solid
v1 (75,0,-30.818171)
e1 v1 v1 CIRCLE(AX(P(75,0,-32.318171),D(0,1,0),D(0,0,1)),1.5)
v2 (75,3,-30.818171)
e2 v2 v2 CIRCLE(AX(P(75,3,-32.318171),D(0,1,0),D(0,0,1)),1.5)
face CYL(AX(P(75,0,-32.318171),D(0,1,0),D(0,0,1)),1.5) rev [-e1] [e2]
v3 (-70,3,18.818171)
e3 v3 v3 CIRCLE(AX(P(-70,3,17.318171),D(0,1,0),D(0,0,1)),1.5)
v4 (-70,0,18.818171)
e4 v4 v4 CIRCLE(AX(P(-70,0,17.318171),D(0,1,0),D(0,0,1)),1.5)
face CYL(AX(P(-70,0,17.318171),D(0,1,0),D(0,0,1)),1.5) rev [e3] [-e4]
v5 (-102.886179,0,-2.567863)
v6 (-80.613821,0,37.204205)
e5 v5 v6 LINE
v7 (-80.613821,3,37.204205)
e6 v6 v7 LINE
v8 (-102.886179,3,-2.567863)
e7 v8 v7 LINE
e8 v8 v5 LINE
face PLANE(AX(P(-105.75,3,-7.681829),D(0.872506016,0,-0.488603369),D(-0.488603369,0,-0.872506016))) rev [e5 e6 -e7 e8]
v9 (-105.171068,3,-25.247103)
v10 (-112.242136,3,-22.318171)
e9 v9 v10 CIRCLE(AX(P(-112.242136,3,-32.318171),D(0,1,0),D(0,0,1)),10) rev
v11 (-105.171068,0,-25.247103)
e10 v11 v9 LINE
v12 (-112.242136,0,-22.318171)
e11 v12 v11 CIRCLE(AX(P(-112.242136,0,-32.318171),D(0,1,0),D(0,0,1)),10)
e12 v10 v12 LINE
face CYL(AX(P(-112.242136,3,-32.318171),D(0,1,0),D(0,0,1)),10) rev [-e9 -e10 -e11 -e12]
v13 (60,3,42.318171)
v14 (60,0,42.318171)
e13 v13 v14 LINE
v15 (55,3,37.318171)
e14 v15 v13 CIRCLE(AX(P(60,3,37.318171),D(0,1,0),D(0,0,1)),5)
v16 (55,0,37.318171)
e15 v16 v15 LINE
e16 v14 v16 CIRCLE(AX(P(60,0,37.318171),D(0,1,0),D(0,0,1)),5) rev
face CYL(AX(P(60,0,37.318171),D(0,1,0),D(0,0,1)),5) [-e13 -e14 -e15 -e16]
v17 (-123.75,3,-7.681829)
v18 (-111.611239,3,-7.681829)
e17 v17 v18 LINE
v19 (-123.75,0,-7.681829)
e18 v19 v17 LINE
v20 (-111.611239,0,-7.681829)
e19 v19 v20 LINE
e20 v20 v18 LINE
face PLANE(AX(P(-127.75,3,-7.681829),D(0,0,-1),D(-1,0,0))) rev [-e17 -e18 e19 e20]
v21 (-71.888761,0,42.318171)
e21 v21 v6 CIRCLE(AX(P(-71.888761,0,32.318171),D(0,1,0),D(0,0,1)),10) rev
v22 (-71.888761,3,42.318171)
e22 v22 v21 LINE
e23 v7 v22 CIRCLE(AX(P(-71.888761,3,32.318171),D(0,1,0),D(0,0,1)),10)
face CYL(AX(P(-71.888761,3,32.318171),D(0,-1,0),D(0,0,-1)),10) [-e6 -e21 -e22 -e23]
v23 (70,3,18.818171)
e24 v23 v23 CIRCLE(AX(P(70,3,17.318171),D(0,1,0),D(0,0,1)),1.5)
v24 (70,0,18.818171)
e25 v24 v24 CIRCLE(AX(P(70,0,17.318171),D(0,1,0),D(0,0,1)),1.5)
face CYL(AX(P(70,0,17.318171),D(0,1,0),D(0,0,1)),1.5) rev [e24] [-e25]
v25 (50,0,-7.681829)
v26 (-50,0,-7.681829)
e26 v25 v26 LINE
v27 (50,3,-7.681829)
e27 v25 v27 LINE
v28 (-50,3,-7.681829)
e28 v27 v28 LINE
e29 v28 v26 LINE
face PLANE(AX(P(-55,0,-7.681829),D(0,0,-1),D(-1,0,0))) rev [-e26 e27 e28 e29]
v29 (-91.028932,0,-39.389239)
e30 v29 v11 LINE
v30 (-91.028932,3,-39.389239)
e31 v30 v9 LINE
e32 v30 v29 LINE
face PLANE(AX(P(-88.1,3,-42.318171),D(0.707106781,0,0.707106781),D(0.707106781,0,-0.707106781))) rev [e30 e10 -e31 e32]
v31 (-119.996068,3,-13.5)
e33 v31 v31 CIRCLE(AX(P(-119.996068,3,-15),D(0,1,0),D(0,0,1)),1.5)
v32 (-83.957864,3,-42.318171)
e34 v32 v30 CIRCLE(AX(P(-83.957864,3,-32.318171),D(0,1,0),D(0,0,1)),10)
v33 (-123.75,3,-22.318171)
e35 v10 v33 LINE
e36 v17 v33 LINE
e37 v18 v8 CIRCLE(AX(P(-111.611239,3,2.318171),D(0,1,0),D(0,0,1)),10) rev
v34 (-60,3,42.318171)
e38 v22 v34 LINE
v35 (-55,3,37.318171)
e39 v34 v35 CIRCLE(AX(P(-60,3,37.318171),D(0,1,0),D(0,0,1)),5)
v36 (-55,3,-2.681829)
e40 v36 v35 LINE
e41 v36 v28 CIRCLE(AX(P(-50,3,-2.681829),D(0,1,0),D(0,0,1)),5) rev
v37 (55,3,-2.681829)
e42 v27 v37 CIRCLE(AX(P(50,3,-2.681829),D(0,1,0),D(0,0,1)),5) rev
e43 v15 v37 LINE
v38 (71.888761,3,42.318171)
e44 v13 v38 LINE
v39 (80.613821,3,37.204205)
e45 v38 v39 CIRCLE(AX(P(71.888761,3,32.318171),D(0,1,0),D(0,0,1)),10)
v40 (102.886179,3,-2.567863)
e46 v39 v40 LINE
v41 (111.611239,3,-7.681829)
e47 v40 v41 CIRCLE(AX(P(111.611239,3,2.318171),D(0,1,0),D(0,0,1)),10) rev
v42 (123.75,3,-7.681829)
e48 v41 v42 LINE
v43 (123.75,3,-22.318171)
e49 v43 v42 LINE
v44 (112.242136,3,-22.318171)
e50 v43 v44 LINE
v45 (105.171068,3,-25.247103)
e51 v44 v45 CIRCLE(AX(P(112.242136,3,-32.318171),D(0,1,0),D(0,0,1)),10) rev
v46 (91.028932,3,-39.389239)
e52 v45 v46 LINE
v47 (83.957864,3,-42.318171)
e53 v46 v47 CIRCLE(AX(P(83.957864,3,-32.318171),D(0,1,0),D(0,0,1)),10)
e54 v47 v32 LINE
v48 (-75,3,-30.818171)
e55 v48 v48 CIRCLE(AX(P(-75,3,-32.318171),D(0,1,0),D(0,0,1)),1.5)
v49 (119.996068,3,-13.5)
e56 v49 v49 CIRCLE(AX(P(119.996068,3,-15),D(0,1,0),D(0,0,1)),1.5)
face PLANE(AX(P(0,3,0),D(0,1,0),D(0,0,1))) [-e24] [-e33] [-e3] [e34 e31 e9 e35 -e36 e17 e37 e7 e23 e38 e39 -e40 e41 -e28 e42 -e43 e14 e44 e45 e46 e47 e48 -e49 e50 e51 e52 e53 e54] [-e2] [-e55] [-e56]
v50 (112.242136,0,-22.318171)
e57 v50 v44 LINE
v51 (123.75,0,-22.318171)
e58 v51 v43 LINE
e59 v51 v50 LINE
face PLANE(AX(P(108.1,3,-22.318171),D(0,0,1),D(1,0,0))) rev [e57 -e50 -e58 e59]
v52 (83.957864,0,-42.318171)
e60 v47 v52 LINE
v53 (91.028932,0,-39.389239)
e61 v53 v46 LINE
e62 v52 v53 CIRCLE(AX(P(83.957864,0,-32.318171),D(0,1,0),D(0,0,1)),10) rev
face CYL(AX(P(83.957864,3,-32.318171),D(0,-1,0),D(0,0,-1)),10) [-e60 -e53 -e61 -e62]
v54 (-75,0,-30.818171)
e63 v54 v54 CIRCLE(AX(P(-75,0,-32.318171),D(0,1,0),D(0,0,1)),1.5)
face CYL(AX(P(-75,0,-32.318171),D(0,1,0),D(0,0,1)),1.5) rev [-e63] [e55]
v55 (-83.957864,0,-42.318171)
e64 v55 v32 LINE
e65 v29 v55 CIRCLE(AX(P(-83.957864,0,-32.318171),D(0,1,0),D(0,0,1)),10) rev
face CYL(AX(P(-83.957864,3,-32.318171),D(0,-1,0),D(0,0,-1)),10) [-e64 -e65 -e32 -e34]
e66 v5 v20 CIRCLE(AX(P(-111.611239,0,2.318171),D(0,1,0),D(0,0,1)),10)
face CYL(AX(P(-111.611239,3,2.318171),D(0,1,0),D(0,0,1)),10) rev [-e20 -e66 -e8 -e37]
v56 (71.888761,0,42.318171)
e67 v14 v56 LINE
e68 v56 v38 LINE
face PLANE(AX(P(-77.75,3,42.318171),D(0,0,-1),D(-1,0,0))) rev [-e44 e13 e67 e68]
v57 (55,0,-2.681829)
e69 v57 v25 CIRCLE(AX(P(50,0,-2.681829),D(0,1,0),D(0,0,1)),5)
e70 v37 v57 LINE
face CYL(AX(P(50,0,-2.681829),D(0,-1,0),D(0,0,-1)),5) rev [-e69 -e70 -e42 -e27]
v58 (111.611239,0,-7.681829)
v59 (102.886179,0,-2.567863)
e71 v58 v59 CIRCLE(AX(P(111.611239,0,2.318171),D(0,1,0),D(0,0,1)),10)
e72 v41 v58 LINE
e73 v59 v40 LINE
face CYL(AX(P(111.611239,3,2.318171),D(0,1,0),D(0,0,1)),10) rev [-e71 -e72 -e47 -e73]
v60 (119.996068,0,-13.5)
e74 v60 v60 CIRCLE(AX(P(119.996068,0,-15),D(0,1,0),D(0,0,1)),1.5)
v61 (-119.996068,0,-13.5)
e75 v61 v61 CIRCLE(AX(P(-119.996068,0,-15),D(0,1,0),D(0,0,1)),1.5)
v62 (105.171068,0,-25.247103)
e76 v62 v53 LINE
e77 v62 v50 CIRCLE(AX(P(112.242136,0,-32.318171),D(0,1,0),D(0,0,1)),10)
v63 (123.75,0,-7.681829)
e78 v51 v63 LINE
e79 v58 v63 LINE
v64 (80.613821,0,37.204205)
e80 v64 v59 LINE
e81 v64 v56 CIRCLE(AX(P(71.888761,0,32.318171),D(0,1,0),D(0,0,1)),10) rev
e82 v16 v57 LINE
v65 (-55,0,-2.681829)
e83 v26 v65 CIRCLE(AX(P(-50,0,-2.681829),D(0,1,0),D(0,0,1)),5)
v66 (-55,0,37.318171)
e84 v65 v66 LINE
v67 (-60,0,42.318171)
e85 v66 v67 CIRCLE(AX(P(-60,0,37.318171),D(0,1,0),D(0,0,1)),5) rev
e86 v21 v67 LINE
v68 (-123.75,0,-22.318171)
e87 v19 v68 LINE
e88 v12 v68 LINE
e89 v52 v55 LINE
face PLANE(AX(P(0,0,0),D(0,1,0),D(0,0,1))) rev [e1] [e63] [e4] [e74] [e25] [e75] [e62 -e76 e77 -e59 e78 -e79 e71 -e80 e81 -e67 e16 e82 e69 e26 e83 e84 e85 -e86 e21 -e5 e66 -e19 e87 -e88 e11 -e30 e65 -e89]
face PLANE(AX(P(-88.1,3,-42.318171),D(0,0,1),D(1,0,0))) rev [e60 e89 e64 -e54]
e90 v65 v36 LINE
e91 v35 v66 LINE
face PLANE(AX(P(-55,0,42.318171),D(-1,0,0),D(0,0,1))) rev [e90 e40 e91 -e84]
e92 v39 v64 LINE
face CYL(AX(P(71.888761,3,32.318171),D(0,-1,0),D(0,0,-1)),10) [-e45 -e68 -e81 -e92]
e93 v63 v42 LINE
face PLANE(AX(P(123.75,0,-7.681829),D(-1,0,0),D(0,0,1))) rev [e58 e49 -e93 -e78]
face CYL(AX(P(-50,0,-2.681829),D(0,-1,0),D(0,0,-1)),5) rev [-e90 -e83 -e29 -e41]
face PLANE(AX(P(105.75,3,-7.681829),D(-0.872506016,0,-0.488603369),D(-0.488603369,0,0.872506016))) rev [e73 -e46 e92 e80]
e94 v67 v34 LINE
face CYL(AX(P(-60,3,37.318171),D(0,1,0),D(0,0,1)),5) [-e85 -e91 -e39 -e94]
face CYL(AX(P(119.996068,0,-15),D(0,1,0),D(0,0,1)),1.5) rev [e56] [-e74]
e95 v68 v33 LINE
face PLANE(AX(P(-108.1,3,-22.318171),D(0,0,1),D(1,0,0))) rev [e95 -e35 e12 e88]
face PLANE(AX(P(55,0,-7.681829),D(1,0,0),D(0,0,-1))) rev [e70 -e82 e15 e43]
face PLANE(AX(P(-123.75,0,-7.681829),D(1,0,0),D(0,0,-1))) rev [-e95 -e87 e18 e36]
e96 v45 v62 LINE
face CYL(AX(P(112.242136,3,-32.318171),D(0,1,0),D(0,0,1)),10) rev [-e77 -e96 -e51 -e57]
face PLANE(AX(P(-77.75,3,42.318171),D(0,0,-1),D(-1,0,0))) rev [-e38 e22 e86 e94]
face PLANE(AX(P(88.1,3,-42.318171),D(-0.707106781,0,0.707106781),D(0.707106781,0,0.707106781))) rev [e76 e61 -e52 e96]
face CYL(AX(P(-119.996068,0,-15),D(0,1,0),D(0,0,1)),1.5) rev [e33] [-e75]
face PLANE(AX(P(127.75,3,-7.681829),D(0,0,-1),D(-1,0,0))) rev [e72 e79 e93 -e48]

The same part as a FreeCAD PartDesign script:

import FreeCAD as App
import Part
import Sketcher
from FreeCAD import Vector
Q = App.Units.Quantity


def edges_at(feature, points):
    """Names of the edges that pass closest to the given points."""
    edges = feature.Shape.Edges
    near = lambda p: min(range(len(edges)), key=lambda i: edges[i].distToShape(Part.Vertex(*p))[0])
    return sorted({f"Edge{near(p) + 1}" for p in points})


def add_polygon(sketch, points):
    """Adds a closed chain of lines whose ends are joined by coincident constraints."""
    first, n = sketch.GeometryCount, len(points)
    for a, b in zip(points, points[1:] + points[:1]):
        sketch.addGeometry(Part.LineSegment(App.Vector(*a, 0), App.Vector(*b, 0)), False)
    for i in range(n):
        sketch.addConstraint(Sketcher.Constraint("Coincident", first + i, 2, first + (i + 1) % n, 1))

doc = App.newDocument("Part")
body = doc.addObject("PartDesign::Body", "Body")

# Sketch on XZ plane
sketch1 = doc.addObject("Sketcher::SketchObject", "Sketch")
body.addObject(sketch1)
sketch1.AttachmentSupport = (doc.XZ_Plane, [""])
sketch1.MapMode = "FlatFace"
add_polygon(sketch1, [(88, -42), (-88, -42), (-108, -22), (-128, -22), (-128, -8), (-106, -8), (-78, 42), (78, 42), (106, -8), (128, -8), (128, -22), (108, -22)])  # lines 0-11
sketch1.addConstraint([
    Sketcher.Constraint("Horizontal", 0),
    Sketcher.Constraint("Horizontal", 2),
    Sketcher.Constraint("Vertical", 3),
    Sketcher.Constraint("Horizontal", 4),
    Sketcher.Constraint("Horizontal", 6),
    Sketcher.Constraint("Horizontal", 8),
    Sketcher.Constraint("Vertical", 9),
    Sketcher.Constraint("Horizontal", 10),
    Sketcher.Constraint("Symmetric", 4, 2, 7, 2, -2),
    Sketcher.Constraint("Symmetric", 2, 2, 9, 2, -2),
    Sketcher.Constraint("Perpendicular", 1, 11),
    Sketcher.Constraint("Equal", 2, 10),
    Sketcher.Constraint("Equal", 5, 7),
    Sketcher.Constraint("Equal", 1, 11),
    Sketcher.Constraint("DistanceX", 4, 1, 4, 2, Q("22 mm")),
    Sketcher.Constraint("DistanceX", 0, 2, 0, 1, Q("176.2 mm")),
    Sketcher.Constraint("DistanceX", 6, 1, 6, 2, Q("155.5 mm")),
    Sketcher.Constraint("DistanceX", 1, 2, 0, 2, Q("20 mm")),
    Sketcher.Constraint("DistanceX", 4, 2, 5, 2, Q("28 mm")),
    Sketcher.Constraint("DistanceY", 4, 2, 5, 2, Q("50 mm")),
    Sketcher.Constraint("DistanceY", 3, 1, 3, 2, Q("14.636342 mm")),
    Sketcher.Constraint("DistanceY", 0, 2, -1, 1, Q("42.318171 mm")),
])
pad1 = doc.addObject("PartDesign::Pad", "Pad")
body.addObject(pad1)
pad1.Profile = sketch1
pad1.Length = 3
pad1.Reversed = True
doc.recompute()

fillet = doc.addObject("PartDesign::Fillet", "Fillet")
body.addObject(fillet)
fillet.Base = (pad1, edges_at(pad1, [
    (-88.1, 1.5, -42.318),
    (88.1, 1.5, -42.318),
    (108.1, 1.5, -22.318),
    (105.75, 1.5, -7.682),
    (77.75, 1.5, 42.318),
    (-77.75, 1.5, 42.318),
    (-105.75, 1.5, -7.682),
    (-108.1, 1.5, -22.318),
]))
fillet.Radius = 10

# Sketch on XZ plane
sketch2 = doc.addObject("Sketcher::SketchObject", "Sketch001")
body.addObject(sketch2)
sketch2.AttachmentSupport = (doc.XZ_Plane, [""])
sketch2.MapMode = "FlatFace"
sketch2.AttachmentOffset = App.Placement(Vector(0, 0, -3), App.Rotation())
sketch2.addGeometry([
    Part.Circle(Vector(70, 17.3, 0), Vector(0, 0, 1), 1.5),  # 0
    Part.Circle(Vector(-70, 17.3, 0), Vector(0, 0, 1), 1.5),  # 1
    Part.Circle(Vector(-120, -15, 0), Vector(0, 0, 1), 1.5),  # 2
    Part.Circle(Vector(120, -15, 0), Vector(0, 0, 1), 1.5),  # 3
    Part.Circle(Vector(-75, -32.3, 0), Vector(0, 0, 1), 1.5),  # 4
    Part.Circle(Vector(75, -32.3, 0), Vector(0, 0, 1), 1.5),  # 5
    Part.Circle(Vector(-17.5, 17.3, 0), Vector(0, 0, 1), 1.5),  # 6
    Part.Circle(Vector(17.5, 17.3, 0), Vector(0, 0, 1), 1.5),  # 7
    Part.Circle(Vector(-17.5, 37.3, 0), Vector(0, 0, 1), 1.5),  # 8
    Part.Circle(Vector(17.5, 37.3, 0), Vector(0, 0, 1), 1.5),  # 9
], False)
sketch2.addConstraint([
    Sketcher.Constraint("Equal", 0, 1),
    Sketcher.Constraint("Equal", 1, 2),
    Sketcher.Constraint("Equal", 2, 3),
    Sketcher.Constraint("Equal", 3, 4),
    Sketcher.Constraint("Equal", 4, 5),
    Sketcher.Constraint("Equal", 5, 6),
    Sketcher.Constraint("Equal", 6, 7),
    Sketcher.Constraint("Equal", 7, 8),
    Sketcher.Constraint("Equal", 8, 9),
    Sketcher.Constraint("Symmetric", 0, 3, 1, 3, -2),
    Sketcher.Constraint("Symmetric", 2, 3, 3, 3, -2),
    Sketcher.Constraint("Symmetric", 4, 3, 5, 3, -2),
    Sketcher.Constraint("Symmetric", 6, 3, 7, 3, -2),
    Sketcher.Constraint("Symmetric", 8, 3, 9, 3, -2),
    Sketcher.Constraint("Horizontal", 1, 3, 6, 3),
    Sketcher.Constraint("Vertical", 6, 3, 8, 3),
    Sketcher.Constraint("Diameter", 0, Q("3 mm")),
    Sketcher.Constraint("DistanceX", -1, 1, 0, 3, Q("70 mm")),
    Sketcher.Constraint("DistanceY", 2, 3, -1, 1, Q("15 mm")),
    Sketcher.Constraint("DistanceX", 4, 3, -1, 1, Q("75 mm")),
    Sketcher.Constraint("DistanceX", 6, 3, 7, 3, Q("35 mm")),
    Sketcher.Constraint("DistanceY", 6, 3, 8, 3, Q("20 mm")),
    Sketcher.Constraint("DistanceY", -1, 1, 0, 3, Q("17.318171 mm")),
    Sketcher.Constraint("DistanceY", 4, 3, -1, 1, Q("32.318171 mm")),
    Sketcher.Constraint("DistanceX", 2, 3, -1, 1, Q("119.996068 mm")),
])
pocket1 = doc.addObject("PartDesign::Pocket", "Pocket")
body.addObject(pocket1)
pocket1.Profile = sketch2
pocket1.Type = "ThroughAll"
pocket1.Reversed = True

# Sketch on XZ plane
sketch3 = doc.addObject("Sketcher::SketchObject", "Sketch002")
body.addObject(sketch3)
sketch3.AttachmentSupport = (doc.XZ_Plane, [""])
sketch3.MapMode = "FlatFace"
sketch3.AttachmentOffset = App.Placement(Vector(0, 0, -3), App.Rotation())
add_polygon(sketch3, [(-55, -8), (-55, 42), (55, 42), (55, -8)])  # lines 0-3
sketch3.addConstraint([
    Sketcher.Constraint("Vertical", 0),
    Sketcher.Constraint("Horizontal", 1),
    Sketcher.Constraint("Vertical", 2),
    Sketcher.Constraint("Horizontal", 3),
    Sketcher.Constraint("DistanceX", 1, 1, 1, 2, Q("110 mm")),
    Sketcher.Constraint("DistanceY", 0, 1, 0, 2, Q("50 mm")),
    Sketcher.Constraint("DistanceX", 0, 2, -1, 1, Q("55 mm")),
    Sketcher.Constraint("DistanceY", -1, 1, 0, 2, Q("42.318171 mm")),
])
pocket2 = doc.addObject("PartDesign::Pocket", "Pocket001")
body.addObject(pocket2)
pocket2.Profile = sketch3
pocket2.Type = "ThroughAll"
pocket2.Reversed = True
doc.recompute()

fillet2 = doc.addObject("PartDesign::Fillet", "Fillet001")
body.addObject(fillet2)
fillet2.Base = (pocket2, edges_at(pocket2, [
    (55, 1.5, 42.318),
    (-55, 1.5, 42.318),
    (-55, 1.5, -7.682),
    (55, 1.5, -7.682),
]))
fillet2.Radius = 5

# Sketch on XZ plane
sketch4 = doc.addObject("Sketcher::SketchObject", "Sketch003")
body.addObject(sketch4)
sketch4.AttachmentSupport = (doc.XZ_Plane, [""])
sketch4.MapMode = "FlatFace"
sketch4.AttachmentOffset = App.Placement(Vector(0, 0, -3), App.Rotation())
add_polygon(sketch4, [(-127.8, -22.3), (-127.8, -7.7), (-123.8, -7.7), (-123.8, -22.3)])  # lines 0-3
add_polygon(sketch4, [(123.8, -22.3), (123.8, -7.7), (127.8, -7.7), (127.8, -22.3)])  # lines 4-7
sketch4.addConstraint([
    Sketcher.Constraint("Vertical", 0),
    Sketcher.Constraint("Horizontal", 1),
    Sketcher.Constraint("Vertical", 2),
    Sketcher.Constraint("Horizontal", 3),
    Sketcher.Constraint("Vertical", 4),
    Sketcher.Constraint("Horizontal", 5),
    Sketcher.Constraint("Vertical", 6),
    Sketcher.Constraint("Horizontal", 7),
    Sketcher.Constraint("Symmetric", 1, 2, 4, 2, -2),
    Sketcher.Constraint("Symmetric", 3, 2, 6, 2, -2),
    Sketcher.Constraint("DistanceX", 1, 1, 1, 2, Q("4 mm")),
    Sketcher.Constraint("DistanceX", 1, 2, 4, 2, Q("247.5 mm")),
    Sketcher.Constraint("DistanceY", 0, 1, 0, 2, Q("14.636342 mm")),
    Sketcher.Constraint("DistanceY", 0, 2, -1, 1, Q("7.681829 mm")),
])
pocket3 = doc.addObject("PartDesign::Pocket", "Pocket002")
body.addObject(pocket3)
pocket3.Profile = sketch4
pocket3.Type = "ThroughAll"
pocket3.Reversed = True

doc.recompute()
